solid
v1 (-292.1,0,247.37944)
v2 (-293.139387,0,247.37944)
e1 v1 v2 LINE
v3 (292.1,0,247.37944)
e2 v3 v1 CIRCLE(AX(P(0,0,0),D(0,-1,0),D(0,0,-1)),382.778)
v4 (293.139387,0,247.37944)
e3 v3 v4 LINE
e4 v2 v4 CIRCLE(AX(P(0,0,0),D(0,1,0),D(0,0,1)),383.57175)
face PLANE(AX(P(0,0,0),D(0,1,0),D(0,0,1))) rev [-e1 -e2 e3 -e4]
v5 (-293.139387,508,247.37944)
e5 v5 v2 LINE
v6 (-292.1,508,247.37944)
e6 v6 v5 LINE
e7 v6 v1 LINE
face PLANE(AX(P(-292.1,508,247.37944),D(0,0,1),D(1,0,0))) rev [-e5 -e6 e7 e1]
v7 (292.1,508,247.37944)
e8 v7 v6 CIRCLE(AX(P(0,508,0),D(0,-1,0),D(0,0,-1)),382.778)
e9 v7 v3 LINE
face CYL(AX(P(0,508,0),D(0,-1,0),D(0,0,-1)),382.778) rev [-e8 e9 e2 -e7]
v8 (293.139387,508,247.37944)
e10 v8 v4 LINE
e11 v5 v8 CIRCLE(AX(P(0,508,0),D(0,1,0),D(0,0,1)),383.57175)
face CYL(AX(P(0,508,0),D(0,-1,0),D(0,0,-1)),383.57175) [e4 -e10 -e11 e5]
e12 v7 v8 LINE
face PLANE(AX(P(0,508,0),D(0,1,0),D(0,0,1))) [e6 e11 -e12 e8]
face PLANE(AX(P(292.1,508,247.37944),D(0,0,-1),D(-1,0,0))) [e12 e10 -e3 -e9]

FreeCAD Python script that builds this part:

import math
import FreeCAD as App
import Part
import Sketcher
from FreeCAD import Vector
Q = App.Units.Quantity

doc = App.newDocument("Part")
params = doc.addObject("Spreadsheet::Sheet", "Params")
for row, (alias, value) in enumerate([
    ("sketch1_radius", "15.07 in"),
    ("pad1_length", "20 in"),
], start=1):
    params.set(f"A{row}", alias)
    params.set(f"B{row}", "=" + value)
    params.setAlias(f"B{row}", alias)

body = doc.addObject("PartDesign::Body", "Body")

# Sketch on XZ plane
sketch1 = body.newObject("Sketcher::SketchObject", "Sketch")
sketch1.AttachmentSupport = (doc.getObject("XZ_Plane"), [""])
sketch1.MapMode = "FlatFace"
sketch1.addGeometry([
    Part.LineSegment(Vector(293.1, 247.4, 0), Vector(292.1, 247.4, 0)),
    Part.ArcOfCircle(Part.Circle(Vector(0, 0, 0), Vector(0, 0, 1), 382.8), math.radians(40), math.radians(140)),
    Part.LineSegment(Vector(-292.1, 247.4, 0), Vector(-293.1, 247.4, 0)),
    Part.ArcOfCircle(Part.Circle(Vector(0, 0, 0), Vector(0, 0, 1), 383.6), math.radians(40), math.radians(140)),
], False)
sketch1.addConstraint([
    Sketcher.Constraint("Coincident", 0, 2, 1, 1),
    Sketcher.Constraint("Coincident", 1, 2, 2, 1),
    Sketcher.Constraint("Coincident", 2, 2, 3, 2),
    Sketcher.Constraint("Coincident", 3, 1, 0, 1),
    Sketcher.Constraint("Horizontal", 0),
    Sketcher.Constraint("Horizontal", 2),
    Sketcher.Constraint("Coincident", 1, 3, -1, 1),
    Sketcher.Constraint("Coincident", 3, 3, -1, 1),
    Sketcher.Constraint("Horizontal", 0, 2, 1, 2),
    Sketcher.Constraint("Radius", 1, Q("15.07 in")),
    Sketcher.Constraint("DistanceX", 1, 2, 0, 2, Q("23 in")),
    Sketcher.Constraint("Radius", 3, 383.57175),
])
sketch1.setExpression("Constraints[9]", "Params.sketch1_radius")
pad1 = body.newObject("PartDesign::Pad", "Pad")
pad1.Profile = sketch1
pad1.setExpression("Length", "Params.pad1_length")
pad1.Reversed = True

doc.recompute()
